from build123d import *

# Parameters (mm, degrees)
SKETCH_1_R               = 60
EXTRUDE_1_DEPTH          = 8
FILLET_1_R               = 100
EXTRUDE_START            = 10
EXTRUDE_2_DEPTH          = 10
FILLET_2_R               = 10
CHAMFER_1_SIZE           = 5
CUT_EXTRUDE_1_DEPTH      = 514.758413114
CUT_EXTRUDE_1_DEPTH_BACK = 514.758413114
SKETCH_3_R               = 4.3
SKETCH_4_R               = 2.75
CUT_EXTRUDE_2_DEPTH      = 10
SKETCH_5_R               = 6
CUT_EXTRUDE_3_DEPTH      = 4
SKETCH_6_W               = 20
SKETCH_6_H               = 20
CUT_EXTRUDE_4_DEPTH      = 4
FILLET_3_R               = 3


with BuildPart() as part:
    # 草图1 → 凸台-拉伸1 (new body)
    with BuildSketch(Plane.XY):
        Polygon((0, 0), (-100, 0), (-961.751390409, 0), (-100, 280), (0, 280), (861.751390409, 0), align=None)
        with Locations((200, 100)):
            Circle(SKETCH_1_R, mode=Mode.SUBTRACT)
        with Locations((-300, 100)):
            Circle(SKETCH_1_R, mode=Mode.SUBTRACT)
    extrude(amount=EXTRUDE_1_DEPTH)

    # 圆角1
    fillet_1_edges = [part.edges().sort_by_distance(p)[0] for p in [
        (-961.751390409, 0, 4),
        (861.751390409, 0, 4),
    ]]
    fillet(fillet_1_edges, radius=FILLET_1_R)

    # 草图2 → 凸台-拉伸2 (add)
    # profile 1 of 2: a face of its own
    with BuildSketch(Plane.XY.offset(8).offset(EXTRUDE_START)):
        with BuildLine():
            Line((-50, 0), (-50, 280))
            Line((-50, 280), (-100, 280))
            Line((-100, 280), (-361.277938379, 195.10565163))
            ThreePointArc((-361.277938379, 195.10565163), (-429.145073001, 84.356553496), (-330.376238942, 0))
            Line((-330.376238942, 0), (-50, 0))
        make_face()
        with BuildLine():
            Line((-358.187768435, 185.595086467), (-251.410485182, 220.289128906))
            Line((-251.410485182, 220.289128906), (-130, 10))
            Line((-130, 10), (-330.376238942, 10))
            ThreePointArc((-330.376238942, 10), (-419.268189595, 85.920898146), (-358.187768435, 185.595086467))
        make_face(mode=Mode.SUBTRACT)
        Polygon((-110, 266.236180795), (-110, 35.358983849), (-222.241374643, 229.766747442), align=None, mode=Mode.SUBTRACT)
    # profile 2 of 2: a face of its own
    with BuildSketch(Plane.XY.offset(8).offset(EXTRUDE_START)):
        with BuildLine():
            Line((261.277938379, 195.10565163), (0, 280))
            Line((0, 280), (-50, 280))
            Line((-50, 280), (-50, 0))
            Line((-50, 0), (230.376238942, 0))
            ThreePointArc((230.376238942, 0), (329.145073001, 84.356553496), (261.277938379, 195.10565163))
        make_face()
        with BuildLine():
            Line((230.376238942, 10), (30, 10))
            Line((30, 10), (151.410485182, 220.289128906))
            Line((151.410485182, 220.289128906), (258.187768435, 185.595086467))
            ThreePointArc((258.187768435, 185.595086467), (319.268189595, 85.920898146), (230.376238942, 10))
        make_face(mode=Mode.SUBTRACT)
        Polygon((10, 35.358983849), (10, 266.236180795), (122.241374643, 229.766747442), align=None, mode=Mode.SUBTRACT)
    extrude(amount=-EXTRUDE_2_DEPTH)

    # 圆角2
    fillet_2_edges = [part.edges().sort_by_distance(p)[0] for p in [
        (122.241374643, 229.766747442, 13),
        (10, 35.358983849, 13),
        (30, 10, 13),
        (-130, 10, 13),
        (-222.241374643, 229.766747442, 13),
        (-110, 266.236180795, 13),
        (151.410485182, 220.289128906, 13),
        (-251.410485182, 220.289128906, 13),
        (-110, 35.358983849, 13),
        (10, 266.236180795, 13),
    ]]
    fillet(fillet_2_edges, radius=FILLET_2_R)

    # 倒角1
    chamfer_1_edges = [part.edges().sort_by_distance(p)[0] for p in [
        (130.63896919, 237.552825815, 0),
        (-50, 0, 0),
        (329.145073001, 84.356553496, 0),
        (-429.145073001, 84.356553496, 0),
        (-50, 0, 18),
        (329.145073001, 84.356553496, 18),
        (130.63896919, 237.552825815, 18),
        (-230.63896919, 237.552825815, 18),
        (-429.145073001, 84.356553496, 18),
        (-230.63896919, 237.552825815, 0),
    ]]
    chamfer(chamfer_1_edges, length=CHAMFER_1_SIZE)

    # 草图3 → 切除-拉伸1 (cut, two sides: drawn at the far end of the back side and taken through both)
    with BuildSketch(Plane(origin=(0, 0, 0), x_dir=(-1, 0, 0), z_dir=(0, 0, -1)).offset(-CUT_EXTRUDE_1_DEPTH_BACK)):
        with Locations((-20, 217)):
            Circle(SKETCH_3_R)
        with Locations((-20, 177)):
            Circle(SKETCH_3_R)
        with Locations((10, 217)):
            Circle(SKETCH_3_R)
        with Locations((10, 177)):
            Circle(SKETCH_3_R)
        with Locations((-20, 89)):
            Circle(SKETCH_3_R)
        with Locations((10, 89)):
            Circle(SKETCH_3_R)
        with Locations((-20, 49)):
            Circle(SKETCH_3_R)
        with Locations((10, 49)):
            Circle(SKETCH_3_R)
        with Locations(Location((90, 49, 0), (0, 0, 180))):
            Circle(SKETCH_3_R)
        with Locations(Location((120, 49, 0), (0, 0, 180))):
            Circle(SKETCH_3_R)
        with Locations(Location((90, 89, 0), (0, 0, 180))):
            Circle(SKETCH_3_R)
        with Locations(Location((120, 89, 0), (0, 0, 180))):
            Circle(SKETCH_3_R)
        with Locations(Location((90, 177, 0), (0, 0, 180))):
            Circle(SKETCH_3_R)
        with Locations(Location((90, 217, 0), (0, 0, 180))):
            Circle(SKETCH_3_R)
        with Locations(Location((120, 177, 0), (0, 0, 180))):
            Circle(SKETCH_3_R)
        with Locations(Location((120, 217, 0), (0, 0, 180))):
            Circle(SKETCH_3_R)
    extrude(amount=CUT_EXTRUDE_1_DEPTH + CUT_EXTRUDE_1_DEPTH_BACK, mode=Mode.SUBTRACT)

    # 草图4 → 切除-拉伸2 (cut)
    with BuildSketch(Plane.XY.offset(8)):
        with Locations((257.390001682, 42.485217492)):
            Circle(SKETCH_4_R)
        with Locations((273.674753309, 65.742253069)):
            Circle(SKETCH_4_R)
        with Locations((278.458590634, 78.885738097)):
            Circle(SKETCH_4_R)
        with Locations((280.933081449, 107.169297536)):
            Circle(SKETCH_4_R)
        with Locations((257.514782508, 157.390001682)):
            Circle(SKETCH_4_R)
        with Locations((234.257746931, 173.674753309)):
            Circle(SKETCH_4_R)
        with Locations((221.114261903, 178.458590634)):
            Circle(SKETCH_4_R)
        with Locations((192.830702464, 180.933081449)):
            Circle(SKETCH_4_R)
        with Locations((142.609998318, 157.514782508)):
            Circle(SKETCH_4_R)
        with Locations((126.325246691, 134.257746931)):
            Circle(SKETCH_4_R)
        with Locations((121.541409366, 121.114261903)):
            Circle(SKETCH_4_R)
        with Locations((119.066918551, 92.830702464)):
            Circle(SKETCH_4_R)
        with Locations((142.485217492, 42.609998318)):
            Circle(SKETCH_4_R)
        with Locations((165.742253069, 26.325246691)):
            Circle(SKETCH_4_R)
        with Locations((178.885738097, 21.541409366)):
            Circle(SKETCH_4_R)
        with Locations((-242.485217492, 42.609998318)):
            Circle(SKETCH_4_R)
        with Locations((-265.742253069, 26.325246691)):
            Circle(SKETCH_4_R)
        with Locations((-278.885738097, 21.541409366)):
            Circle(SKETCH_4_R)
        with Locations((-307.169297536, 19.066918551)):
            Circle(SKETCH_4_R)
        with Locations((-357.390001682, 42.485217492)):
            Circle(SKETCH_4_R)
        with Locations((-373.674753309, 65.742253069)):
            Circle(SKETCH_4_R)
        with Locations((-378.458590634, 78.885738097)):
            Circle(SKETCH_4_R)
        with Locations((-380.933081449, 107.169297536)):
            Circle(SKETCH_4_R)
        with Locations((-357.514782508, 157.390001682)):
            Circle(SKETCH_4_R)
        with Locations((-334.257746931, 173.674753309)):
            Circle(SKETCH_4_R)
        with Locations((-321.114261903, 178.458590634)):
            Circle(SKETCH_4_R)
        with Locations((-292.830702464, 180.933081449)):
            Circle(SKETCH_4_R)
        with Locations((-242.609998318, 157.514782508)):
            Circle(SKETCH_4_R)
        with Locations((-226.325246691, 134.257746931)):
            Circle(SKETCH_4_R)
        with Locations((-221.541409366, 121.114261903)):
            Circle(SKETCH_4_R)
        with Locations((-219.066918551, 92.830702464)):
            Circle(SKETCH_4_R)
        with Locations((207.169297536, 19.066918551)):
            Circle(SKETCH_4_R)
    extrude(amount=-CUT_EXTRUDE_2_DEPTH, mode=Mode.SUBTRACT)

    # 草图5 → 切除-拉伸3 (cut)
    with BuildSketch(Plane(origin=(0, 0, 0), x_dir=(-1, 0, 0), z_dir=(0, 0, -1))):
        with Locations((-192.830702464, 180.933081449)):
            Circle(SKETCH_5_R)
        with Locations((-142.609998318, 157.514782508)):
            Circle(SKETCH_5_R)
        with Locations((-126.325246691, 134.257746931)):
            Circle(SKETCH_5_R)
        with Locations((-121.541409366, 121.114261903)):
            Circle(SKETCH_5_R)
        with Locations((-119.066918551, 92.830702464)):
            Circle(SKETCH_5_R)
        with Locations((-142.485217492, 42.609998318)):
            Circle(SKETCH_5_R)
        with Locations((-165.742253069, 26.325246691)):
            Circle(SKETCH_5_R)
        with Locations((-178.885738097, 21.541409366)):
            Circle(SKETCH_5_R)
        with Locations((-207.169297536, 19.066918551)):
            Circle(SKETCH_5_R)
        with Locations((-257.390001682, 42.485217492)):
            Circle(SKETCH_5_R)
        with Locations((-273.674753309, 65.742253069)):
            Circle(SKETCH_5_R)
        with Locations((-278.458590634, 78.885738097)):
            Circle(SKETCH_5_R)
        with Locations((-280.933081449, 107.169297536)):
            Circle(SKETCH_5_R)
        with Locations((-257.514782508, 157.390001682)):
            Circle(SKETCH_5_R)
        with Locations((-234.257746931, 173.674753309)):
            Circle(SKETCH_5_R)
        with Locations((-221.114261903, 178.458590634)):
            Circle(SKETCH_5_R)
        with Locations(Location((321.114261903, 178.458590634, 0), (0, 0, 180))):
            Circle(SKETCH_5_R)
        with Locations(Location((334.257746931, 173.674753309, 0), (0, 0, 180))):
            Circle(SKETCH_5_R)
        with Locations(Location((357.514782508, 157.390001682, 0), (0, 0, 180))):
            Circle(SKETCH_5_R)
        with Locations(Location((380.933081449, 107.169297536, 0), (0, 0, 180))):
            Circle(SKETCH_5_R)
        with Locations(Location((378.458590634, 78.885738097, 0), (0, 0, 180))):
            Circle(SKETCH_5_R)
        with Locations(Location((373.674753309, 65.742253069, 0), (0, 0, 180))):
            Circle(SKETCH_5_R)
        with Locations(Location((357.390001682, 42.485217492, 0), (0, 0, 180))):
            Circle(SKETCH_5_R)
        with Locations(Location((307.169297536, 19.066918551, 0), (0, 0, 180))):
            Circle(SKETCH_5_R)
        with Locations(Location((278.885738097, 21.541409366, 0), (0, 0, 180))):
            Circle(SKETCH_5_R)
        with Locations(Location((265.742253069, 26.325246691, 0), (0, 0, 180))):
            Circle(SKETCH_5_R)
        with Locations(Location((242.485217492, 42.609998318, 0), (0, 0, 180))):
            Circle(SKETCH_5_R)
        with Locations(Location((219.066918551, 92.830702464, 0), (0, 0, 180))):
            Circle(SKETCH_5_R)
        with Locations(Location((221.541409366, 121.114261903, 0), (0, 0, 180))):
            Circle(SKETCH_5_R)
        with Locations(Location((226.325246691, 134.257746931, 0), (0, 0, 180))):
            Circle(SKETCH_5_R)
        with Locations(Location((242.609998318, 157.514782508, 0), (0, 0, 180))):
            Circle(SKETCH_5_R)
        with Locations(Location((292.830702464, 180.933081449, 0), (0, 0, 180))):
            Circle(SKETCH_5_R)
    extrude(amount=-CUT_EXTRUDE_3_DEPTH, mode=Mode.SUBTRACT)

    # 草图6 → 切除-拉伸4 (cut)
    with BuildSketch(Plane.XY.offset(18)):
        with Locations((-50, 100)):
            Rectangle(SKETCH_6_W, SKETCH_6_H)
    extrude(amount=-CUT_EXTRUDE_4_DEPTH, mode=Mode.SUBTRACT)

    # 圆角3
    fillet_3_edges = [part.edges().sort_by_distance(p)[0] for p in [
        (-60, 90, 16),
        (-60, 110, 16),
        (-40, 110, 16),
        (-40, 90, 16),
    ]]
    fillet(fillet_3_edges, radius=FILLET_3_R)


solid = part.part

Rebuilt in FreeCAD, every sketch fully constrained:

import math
import FreeCAD as App
import Part
import Sketcher
from FreeCAD import Vector
Q = App.Units.Quantity


def edges_at(feature, points):
    """Names of the edges that pass closest to the given points."""
    edges = feature.Shape.Edges
    near = lambda p: min(range(len(edges)), key=lambda i: edges[i].distToShape(Part.Vertex(*p))[0])
    return sorted({f"Edge{near(p) + 1}" for p in points})


def add_polygon(sketch, points):
    """Adds a closed chain of lines whose ends are joined by coincident constraints."""
    first, n = sketch.GeometryCount, len(points)
    for a, b in zip(points, points[1:] + points[:1]):
        sketch.addGeometry(Part.LineSegment(App.Vector(*a, 0), App.Vector(*b, 0)), False)
    for i in range(n):
        sketch.addConstraint(Sketcher.Constraint("Coincident", first + i, 2, first + (i + 1) % n, 1))

doc = App.newDocument("Part")
body = doc.addObject("PartDesign::Body", "Body")

sketch1 = body.newObject("Sketcher::SketchObject", "Sketch")
sketch1.AttachmentSupport = (doc.getObject("XY_Plane"), [""])
sketch1.MapMode = "FlatFace"
add_polygon(sketch1, [(-962, 0), (862, 0), (0, 280), (-100, 280)])
sketch1.addGeometry(Part.Circle(Vector(200, 100, 0), Vector(0, 0, 1), 60), False)
sketch1.addGeometry(Part.Circle(Vector(-300, 100, 0), Vector(0, 0, 1), 60), False)
sketch1.addConstraint([
    Sketcher.Constraint("Horizontal", 0),
    Sketcher.Constraint("Horizontal", 2),
    Sketcher.Constraint("Equal", 4, 5),
    Sketcher.Constraint("PointOnObject", 0, 2, -1),
    Sketcher.Constraint("PointOnObject", 1, 2, -2),
    Sketcher.Constraint("Horizontal", 4, 3, 5, 3),
    Sketcher.Constraint("Equal", 1, 3),
    Sketcher.Constraint("Diameter", 4, Q("120 mm")),
    Sketcher.Constraint("DistanceX", 2, 2, 2, 1, Q("100 mm")),
    Sketcher.Constraint("Angle", 1, Q("162 deg")),
    Sketcher.Constraint("DistanceX", -1, 1, 4, 3, Q("200 mm")),
    Sketcher.Constraint("DistanceY", -1, 1, 4, 3, Q("100 mm")),
    Sketcher.Constraint("DistanceX", 5, 3, -1, 1, Q("300 mm")),
    Sketcher.Constraint("DistanceY", -1, 1, 1, 2, Q("280 mm")),
])
pad1 = body.newObject("PartDesign::Pad", "Pad")
pad1.Profile = sketch1
pad1.Length = 8
doc.recompute()

fillet = body.newObject("PartDesign::Fillet", "Fillet")
fillet.Base = (pad1, edges_at(pad1, [(-961.751, 0, 4), (861.751, 0, 4)]))
fillet.Radius = 100

sketch2 = body.newObject("Sketcher::SketchObject", "Sketch001")
sketch2.AttachmentSupport = (doc.getObject("XY_Plane"), [""])
sketch2.MapMode = "FlatFace"
sketch2.AttachmentOffset = App.Placement(Vector(0, 0, 18), App.Rotation())
sketch2.addGeometry(Part.LineSegment(Vector(-330, 0, 0), Vector(230, 0, 0)), False)
sketch2.addGeometry(Part.ArcOfCircle(Part.Circle(Vector(230, 100, 0), Vector(0, 0, 1), 100), math.radians(-90), math.radians(72)), False)
sketch2.addGeometry(Part.LineSegment(Vector(261, 195, 0), Vector(0, 280, 0)), False)
sketch2.addGeometry(Part.LineSegment(Vector(0, 280, 0), Vector(-100, 280, 0)), False)
sketch2.addGeometry(Part.LineSegment(Vector(-100, 280, 0), Vector(-361, 195, 0)), False)
sketch2.addGeometry(Part.ArcOfCircle(Part.Circle(Vector(-330, 100, 0), Vector(0, 0, 1), 100), math.radians(108), math.radians(270)), False)
sketch2.addGeometry(Part.ArcOfCircle(Part.Circle(Vector(-330, 100, 0), Vector(0, 0, 1), 90), math.radians(108), math.radians(270)), False)
sketch2.addGeometry(Part.LineSegment(Vector(-358, 186, 0), Vector(-251, 220, 0)), False)
sketch2.addGeometry(Part.LineSegment(Vector(-251, 220, 0), Vector(-130, 10, 0)), False)
sketch2.addGeometry(Part.LineSegment(Vector(-130, 10, 0), Vector(-330, 10, 0)), False)
add_polygon(sketch2, [(-222, 230), (-110, 266), (-110, 35)])
add_polygon(sketch2, [(10, 35), (10, 266), (122, 230)])
sketch2.addGeometry(Part.ArcOfCircle(Part.Circle(Vector(230, 100, 0), Vector(0, 0, 1), 90), math.radians(-90), math.radians(72)), False)
sketch2.addGeometry(Part.LineSegment(Vector(230, 10, 0), Vector(30, 10, 0)), False)
sketch2.addGeometry(Part.LineSegment(Vector(30, 10, 0), Vector(151, 220, 0)), False)
sketch2.addGeometry(Part.LineSegment(Vector(151, 220, 0), Vector(258, 186, 0)), False)
sketch2.addConstraint([
    Sketcher.Constraint("Tangent", 0, 2, 1, 1),
    Sketcher.Constraint("Tangent", 1, 2, 2, 1),
    Sketcher.Constraint("Coincident", 2, 2, 3, 1),
    Sketcher.Constraint("Coincident", 3, 2, 4, 1),
    Sketcher.Constraint("Tangent", 4, 2, 5, 1),
    Sketcher.Constraint("Tangent", 5, 2, 0, 1),
    Sketcher.Constraint("Tangent", 6, 1, 7, 1),
    Sketcher.Constraint("Coincident", 7, 2, 8, 1),
    Sketcher.Constraint("Coincident", 8, 2, 9, 1),
    Sketcher.Constraint("Tangent", 9, 2, 6, 2),
    Sketcher.Constraint("Tangent", 16, 1, 17, 1),
    Sketcher.Constraint("Coincident", 17, 2, 18, 1),
    Sketcher.Constraint("Coincident", 18, 2, 19, 1),
    Sketcher.Constraint("Tangent", 19, 2, 16, 2),
    Sketcher.Constraint("Horizontal", 0),
    Sketcher.Constraint("Horizontal", 3),
    Sketcher.Constraint("Horizontal", 9),
    Sketcher.Constraint("Vertical", 11),
    Sketcher.Constraint("Vertical", 13),
    Sketcher.Constraint("Horizontal", 17),
    Sketcher.Constraint("Coincident", 6, 3, 5, 3),
    Sketcher.Constraint("Coincident", 16, 3, 1, 3),
    Sketcher.Constraint("Equal", 1, 5),
    Sketcher.Constraint("Equal", 6, 16),
    Sketcher.Constraint("PointOnObject", 0, 2, -1),
    Sketcher.Constraint("PointOnObject", 2, 2, -2),
    Sketcher.Constraint("Parallel", 4, 7),
    Sketcher.Constraint("Parallel", 7, 10),
    Sketcher.Constraint("Parallel", 8, 12),
    Sketcher.Constraint("Parallel", 2, 14),
    Sketcher.Constraint("Parallel", 15, 18),
    Sketcher.Constraint("Parallel", 14, 19),
    Sketcher.Constraint("Horizontal", 10, 2, 13, 2),
    Sketcher.Constraint("Horizontal", 12, 2, 14, 2),
    Sketcher.Constraint("Horizontal", 11, 2, 15, 2),
    Sketcher.Constraint("Horizontal", 7, 2, 18, 2),
    Sketcher.Constraint("Equal", 9, 17),
    Sketcher.Constraint("Radius", 1, Q("100 mm")),
    Sketcher.Constraint("Radius", 6, Q("90 mm")),
    Sketcher.Constraint("DistanceX", 3, 2, 3, 1, Q("100 mm")),
    Sketcher.Constraint("Angle", 2, Q("162 deg")),
    Sketcher.Constraint("Angle", 8, Q("-60 deg")),
    Sketcher.Constraint("DistanceY", -1, 1, 2, 2, Q("280 mm")),
    Sketcher.Constraint("DistanceX", 8, 2, -1, 1, Q("130 mm")),
    Sketcher.Constraint("DistanceX", 10, 2, -1, 1, Q("110 mm")),
    Sketcher.Constraint("DistanceX", -1, 1, 13, 2, Q("10 mm")),
    Sketcher.Constraint("Distance", 12, Q("224.482749 mm")),
    Sketcher.Constraint("DistanceY", -1, 1, 10, 2, Q("266.236181 mm")),
])
pad2 = body.newObject("PartDesign::Pad", "Pad001")
pad2.Profile = sketch2
pad2.Length = 10
pad2.Reversed = True
doc.recompute()

fillet2 = body.newObject("PartDesign::Fillet", "Fillet001")
fillet2.Base = (pad2, edges_at(pad2, [
    (122.241, 229.767, 13),
    (10, 35.359, 13),
    (30, 10, 13),
    (-130, 10, 13),
    (-222.241, 229.767, 13),
    (-110, 266.236, 13),
    (151.41, 220.289, 13),
    (-251.41, 220.289, 13),
    (-110, 35.359, 13),
    (10, 266.236, 13),
]))
fillet2.Radius = 10
doc.recompute()

chamfer = body.newObject("PartDesign::Chamfer", "Chamfer")
chamfer.Base = (fillet2, edges_at(fillet2, [
    (130.639, 237.553, 0),
    (-50, 0, 0),
    (329.145, 84.357, 0),
    (-429.145, 84.357, 0),
    (-50, 0, 18),
    (329.145, 84.357, 18),
    (130.639, 237.553, 18),
    (-230.639, 237.553, 18),
    (-429.145, 84.357, 18),
    (-230.639, 237.553, 0),
]))
chamfer.Size = 5

sketch3 = body.newObject("Sketcher::SketchObject", "Sketch002")
sketch3.AttachmentSupport = (doc.getObject("XY_Plane"), [""])
sketch3.MapMode = "FlatFace"
sketch3.addGeometry([
    Part.Circle(Vector(20, 217, 0), Vector(0, 0, 1), 4.3),
    Part.Circle(Vector(20, 177, 0), Vector(0, 0, 1), 4.3),
    Part.Circle(Vector(-10, 217, 0), Vector(0, 0, 1), 4.3),
    Part.Circle(Vector(-10, 177, 0), Vector(0, 0, 1), 4.3),
    Part.Circle(Vector(20, 89, 0), Vector(0, 0, 1), 4.3),
    Part.Circle(Vector(-10, 89, 0), Vector(0, 0, 1), 4.3),
    Part.Circle(Vector(20, 49, 0), Vector(0, 0, 1), 4.3),
    Part.Circle(Vector(-10, 49, 0), Vector(0, 0, 1), 4.3),
    Part.Circle(Vector(-90, 49, 0), Vector(0, 0, 1), 4.3),
    Part.Circle(Vector(-120, 49, 0), Vector(0, 0, 1), 4.3),
    Part.Circle(Vector(-90, 89, 0), Vector(0, 0, 1), 4.3),
    Part.Circle(Vector(-120, 89, 0), Vector(0, 0, 1), 4.3),
    Part.Circle(Vector(-90, 177, 0), Vector(0, 0, 1), 4.3),
    Part.Circle(Vector(-90, 217, 0), Vector(0, 0, 1), 4.3),
    Part.Circle(Vector(-120, 177, 0), Vector(0, 0, 1), 4.3),
    Part.Circle(Vector(-120, 217, 0), Vector(0, 0, 1), 4.3),
], False)
sketch3.addConstraint([
    Sketcher.Constraint("Equal", 0, 1),
    Sketcher.Constraint("Equal", 1, 2),
    Sketcher.Constraint("Equal", 2, 3),
    Sketcher.Constraint("Equal", 3, 4),
    Sketcher.Constraint("Equal", 4, 5),
    Sketcher.Constraint("Equal", 5, 6),
    Sketcher.Constraint("Equal", 6, 7),
    Sketcher.Constraint("Equal", 7, 8),
    Sketcher.Constraint("Equal", 8, 9),
    Sketcher.Constraint("Equal", 9, 10),
    Sketcher.Constraint("Equal", 10, 11),
    Sketcher.Constraint("Equal", 11, 12),
    Sketcher.Constraint("Equal", 12, 13),
    Sketcher.Constraint("Equal", 13, 14),
    Sketcher.Constraint("Equal", 14, 15),
    Sketcher.Constraint("Horizontal", 0, 3, 2, 3),
    Sketcher.Constraint("Horizontal", 1, 3, 3, 3),
    Sketcher.Constraint("Horizontal", 4, 3, 5, 3),
    Sketcher.Constraint("Horizontal", 6, 3, 7, 3),
    Sketcher.Constraint("Horizontal", 7, 3, 8, 3),
    Sketcher.Constraint("Horizontal", 8, 3, 9, 3),
    Sketcher.Constraint("Horizontal", 5, 3, 10, 3),
    Sketcher.Constraint("Horizontal", 10, 3, 11, 3),
    Sketcher.Constraint("Horizontal", 3, 3, 12, 3),
    Sketcher.Constraint("Horizontal", 2, 3, 13, 3),
    Sketcher.Constraint("Horizontal", 12, 3, 14, 3),
    Sketcher.Constraint("Horizontal", 13, 3, 15, 3),
    Sketcher.Constraint("Vertical", 0, 3, 1, 3),
    Sketcher.Constraint("Vertical", 2, 3, 3, 3),
    Sketcher.Constraint("Vertical", 1, 3, 4, 3),
    Sketcher.Constraint("Vertical", 3, 3, 5, 3),
    Sketcher.Constraint("Vertical", 4, 3, 6, 3),
    Sketcher.Constraint("Vertical", 5, 3, 7, 3),
    Sketcher.Constraint("Vertical", 8, 3, 10, 3),
    Sketcher.Constraint("Vertical", 9, 3, 11, 3),
    Sketcher.Constraint("Vertical", 10, 3, 12, 3),
    Sketcher.Constraint("Vertical", 12, 3, 13, 3),
    Sketcher.Constraint("Vertical", 11, 3, 14, 3),
    Sketcher.Constraint("Vertical", 14, 3, 15, 3),
    Sketcher.Constraint("Diameter", 0, Q("8.6 mm")),
    Sketcher.Constraint("DistanceX", -1, 1, 0, 3, Q("20 mm")),
    Sketcher.Constraint("DistanceY", -1, 1, 0, 3, Q("217 mm")),
    Sketcher.Constraint("DistanceY", -1, 1, 1, 3, Q("177 mm")),
    Sketcher.Constraint("DistanceX", 2, 3, -1, 1, Q("10 mm")),
    Sketcher.Constraint("DistanceY", -1, 1, 4, 3, Q("89 mm")),
    Sketcher.Constraint("DistanceY", -1, 1, 6, 3, Q("49 mm")),
    Sketcher.Constraint("DistanceX", 8, 3, -1, 1, Q("90 mm")),
    Sketcher.Constraint("DistanceX", 9, 3, -1, 1, Q("120 mm")),
])
pocket1 = body.newObject("PartDesign::Pocket", "Pocket")
pocket1.Profile = sketch3
pocket1.Type = "ThroughAll"
pocket1.Midplane = True

sketch4 = body.newObject("Sketcher::SketchObject", "Sketch003")
sketch4.AttachmentSupport = (doc.getObject("XY_Plane"), [""])
sketch4.MapMode = "FlatFace"
sketch4.AttachmentOffset = App.Placement(Vector(0, 0, 8), App.Rotation())
sketch4.addGeometry([
    Part.Circle(Vector(257.4, 42.5, 0), Vector(0, 0, 1), 2.8),
    Part.Circle(Vector(273.7, 65.7, 0), Vector(0, 0, 1), 2.8),
    Part.Circle(Vector(278.5, 78.9, 0), Vector(0, 0, 1), 2.8),
    Part.Circle(Vector(280.9, 107.2, 0), Vector(0, 0, 1), 2.8),
    Part.Circle(Vector(257.5, 157.4, 0), Vector(0, 0, 1), 2.8),
    Part.Circle(Vector(234.3, 173.7, 0), Vector(0, 0, 1), 2.8),
    Part.Circle(Vector(221.1, 178.5, 0), Vector(0, 0, 1), 2.8),
    Part.Circle(Vector(192.8, 180.9, 0), Vector(0, 0, 1), 2.8),
    Part.Circle(Vector(142.6, 157.5, 0), Vector(0, 0, 1), 2.8),
    Part.Circle(Vector(126.3, 134.3, 0), Vector(0, 0, 1), 2.8),
    Part.Circle(Vector(121.5, 121.1, 0), Vector(0, 0, 1), 2.8),
    Part.Circle(Vector(119.1, 92.8, 0), Vector(0, 0, 1), 2.8),
    Part.Circle(Vector(142.5, 42.6, 0), Vector(0, 0, 1), 2.8),
    Part.Circle(Vector(165.7, 26.3, 0), Vector(0, 0, 1), 2.8),
    Part.Circle(Vector(178.9, 21.5, 0), Vector(0, 0, 1), 2.8),
    Part.Circle(Vector(-242.5, 42.6, 0), Vector(0, 0, 1), 2.8),
    Part.Circle(Vector(-265.7, 26.3, 0), Vector(0, 0, 1), 2.8),
    Part.Circle(Vector(-278.9, 21.5, 0), Vector(0, 0, 1), 2.8),
    Part.Circle(Vector(-307.2, 19.1, 0), Vector(0, 0, 1), 2.8),
    Part.Circle(Vector(-357.4, 42.5, 0), Vector(0, 0, 1), 2.8),
    Part.Circle(Vector(-373.7, 65.7, 0), Vector(0, 0, 1), 2.8),
    Part.Circle(Vector(-378.5, 78.9, 0), Vector(0, 0, 1), 2.8),
    Part.Circle(Vector(-380.9, 107.2, 0), Vector(0, 0, 1), 2.8),
    Part.Circle(Vector(-357.5, 157.4, 0), Vector(0, 0, 1), 2.8),
    Part.Circle(Vector(-334.3, 173.7, 0), Vector(0, 0, 1), 2.8),
    Part.Circle(Vector(-321.1, 178.5, 0), Vector(0, 0, 1), 2.8),
    Part.Circle(Vector(-292.8, 180.9, 0), Vector(0, 0, 1), 2.8),
    Part.Circle(Vector(-242.6, 157.5, 0), Vector(0, 0, 1), 2.8),
    Part.Circle(Vector(-226.3, 134.3, 0), Vector(0, 0, 1), 2.8),
    Part.Circle(Vector(-221.5, 121.1, 0), Vector(0, 0, 1), 2.8),
    Part.Circle(Vector(-219.1, 92.8, 0), Vector(0, 0, 1), 2.8),
    Part.Circle(Vector(207.2, 19.1, 0), Vector(0, 0, 1), 2.8),
], False)
sketch4.addConstraint([
    Sketcher.Constraint("Equal", 0, 1),
    Sketcher.Constraint("Equal", 1, 2),
    Sketcher.Constraint("Equal", 2, 3),
    Sketcher.Constraint("Equal", 3, 4),
    Sketcher.Constraint("Equal", 4, 5),
    Sketcher.Constraint("Equal", 5, 6),
    Sketcher.Constraint("Equal", 6, 7),
    Sketcher.Constraint("Equal", 7, 8),
    Sketcher.Constraint("Equal", 8, 9),
    Sketcher.Constraint("Equal", 9, 10),
    Sketcher.Constraint("Equal", 10, 11),
    Sketcher.Constraint("Equal", 11, 12),
    Sketcher.Constraint("Equal", 12, 13),
    Sketcher.Constraint("Equal", 13, 14),
    Sketcher.Constraint("Equal", 14, 15),
    Sketcher.Constraint("Equal", 15, 16),
    Sketcher.Constraint("Equal", 16, 17),
    Sketcher.Constraint("Equal", 17, 18),
    Sketcher.Constraint("Equal", 18, 19),
    Sketcher.Constraint("Equal", 19, 20),
    Sketcher.Constraint("Equal", 20, 21),
    Sketcher.Constraint("Equal", 21, 22),
    Sketcher.Constraint("Equal", 22, 23),
    Sketcher.Constraint("Equal", 23, 24),
    Sketcher.Constraint("Equal", 24, 25),
    Sketcher.Constraint("Equal", 25, 26),
    Sketcher.Constraint("Equal", 26, 27),
    Sketcher.Constraint("Equal", 27, 28),
    Sketcher.Constraint("Equal", 28, 29),
    Sketcher.Constraint("Equal", 29, 30),
    Sketcher.Constraint("Equal", 30, 31),
    Sketcher.Constraint("Horizontal", 12, 3, 15, 3),
    Sketcher.Constraint("Horizontal", 13, 3, 16, 3),
    Sketcher.Constraint("Horizontal", 14, 3, 17, 3),
    Sketcher.Constraint("Horizontal", 0, 3, 19, 3),
    Sketcher.Constraint("Horizontal", 1, 3, 20, 3),
    Sketcher.Constraint("Horizontal", 2, 3, 21, 3),
    Sketcher.Constraint("Horizontal", 3, 3, 22, 3),
    Sketcher.Constraint("Horizontal", 4, 3, 23, 3),
    Sketcher.Constraint("Horizontal", 5, 3, 24, 3),
    Sketcher.Constraint("Horizontal", 6, 3, 25, 3),
    Sketcher.Constraint("Horizontal", 7, 3, 26, 3),
    Sketcher.Constraint("Horizontal", 8, 3, 27, 3),
    Sketcher.Constraint("Horizontal", 9, 3, 28, 3),
    Sketcher.Constraint("Horizontal", 10, 3, 29, 3),
    Sketcher.Constraint("Horizontal", 11, 3, 30, 3),
    Sketcher.Constraint("Horizontal", 18, 3, 31, 3),
    Sketcher.Constraint("Diameter", 0, Q("5.5 mm")),
    Sketcher.Constraint("DistanceX", -1, 1, 0, 3, Q("257.390002 mm")),
    Sketcher.Constraint("DistanceY", -1, 1, 4, 3, Q("157.390002 mm")),
    Sketcher.Constraint("DistanceX", -1, 1, 8, 3, Q("142.609998 mm")),
    Sketcher.Constraint("DistanceY", -1, 1, 12, 3, Q("42.609998 mm")),
    Sketcher.Constraint("DistanceX", 19, 3, -1, 1, Q("357.390002 mm")),
    Sketcher.Constraint("DistanceX", 27, 3, -1, 1, Q("242.609998 mm")),
    Sketcher.Constraint("DistanceX", 4, 3, 3, 3, Q("23.418299 mm")),
    Sketcher.Constraint("DistanceY", 1, 3, 5, 3, Q("107.9325 mm")),
    Sketcher.Constraint("DistanceY", 8, 3, 7, 3, Q("23.418299 mm")),
    Sketcher.Constraint("DistanceX", 9, 3, 5, 3, Q("107.9325 mm")),
    Sketcher.Constraint("DistanceX", 11, 3, 12, 3, Q("23.418299 mm")),
    Sketcher.Constraint("DistanceX", 13, 3, 1, 3, Q("107.9325 mm")),
    Sketcher.Constraint("DistanceX", 16, 3, 9, 3, Q("392.0675 mm")),
    Sketcher.Constraint("DistanceY", 16, 3, 9, 3, Q("107.9325 mm")),
    Sketcher.Constraint("DistanceY", 18, 3, 19, 3, Q("23.418299 mm")),
    Sketcher.Constraint("DistanceX", 20, 3, 16, 3, Q("107.9325 mm")),
    Sketcher.Constraint("DistanceX", 22, 3, 23, 3, Q("23.418299 mm")),
    Sketcher.Constraint("DistanceX", 24, 3, 28, 3, Q("107.9325 mm")),
    Sketcher.Constraint("DistanceX", 15, 3, 30, 3, Q("23.418299 mm")),
    Sketcher.Constraint("DistanceX", -1, 1, 2, 3, Q("278.458591 mm")),
    Sketcher.Constraint("DistanceY", -1, 1, 2, 3, Q("78.885738 mm")),
    Sketcher.Constraint("DistanceX", -1, 1, 3, 3, Q("280.933081 mm")),
    Sketcher.Constraint("DistanceX", -1, 1, 6, 3, Q("221.114262 mm")),
    Sketcher.Constraint("DistanceY", -1, 1, 6, 3, Q("178.458591 mm")),
    Sketcher.Constraint("DistanceY", -1, 1, 7, 3, Q("180.933081 mm")),
    Sketcher.Constraint("DistanceX", -1, 1, 10, 3, Q("121.541409 mm")),
    Sketcher.Constraint("DistanceY", -1, 1, 10, 3, Q("121.114262 mm")),
    Sketcher.Constraint("DistanceX", -1, 1, 11, 3, Q("119.066919 mm")),
    Sketcher.Constraint("DistanceX", -1, 1, 14, 3, Q("178.885738 mm")),
    Sketcher.Constraint("DistanceY", -1, 1, 14, 3, Q("21.541409 mm")),
    Sketcher.Constraint("DistanceX", 17, 3, -1, 1, Q("278.885738 mm")),
    Sketcher.Constraint("DistanceY", -1, 1, 18, 3, Q("19.066919 mm")),
    Sketcher.Constraint("DistanceX", 21, 3, -1, 1, Q("378.458591 mm")),
    Sketcher.Constraint("DistanceX", 22, 3, -1, 1, Q("380.933081 mm")),
    Sketcher.Constraint("DistanceX", 25, 3, -1, 1, Q("321.114262 mm")),
    Sketcher.Constraint("DistanceX", 29, 3, -1, 1, Q("221.541409 mm")),
    Sketcher.Constraint("DistanceX", 30, 3, -1, 1, Q("219.066919 mm")),
    Sketcher.Constraint("DistanceX", 0, 3, 1, 3, Q("16.284752 mm")),
    Sketcher.Constraint("DistanceY", 2, 3, 3, 3, Q("28.283559 mm")),
    Sketcher.Constraint("DistanceY", 1, 3, 4, 3, Q("91.647749 mm")),
    Sketcher.Constraint("DistanceX", 7, 3, 6, 3, Q("28.283559 mm")),
    Sketcher.Constraint("DistanceX", 8, 3, 5, 3, Q("91.647749 mm")),
    Sketcher.Constraint("DistanceY", 11, 3, 10, 3, Q("28.283559 mm")),
    Sketcher.Constraint("DistanceY", 12, 3, 9, 3, Q("91.647749 mm")),
    Sketcher.Constraint("DistanceX", 18, 3, 17, 3, Q("28.283559 mm")),
    Sketcher.Constraint("DistanceX", 25, 3, 26, 3, Q("28.283559 mm")),
    Sketcher.Constraint("DistanceX", 24, 3, 27, 3, Q("91.647749 mm")),
    Sketcher.Constraint("DistanceX", 14, 3, 31, 3, Q("28.283559 mm")),
])
pocket2 = body.newObject("PartDesign::Pocket", "Pocket001")
pocket2.Profile = sketch4
pocket2.Length = 10

sketch5 = body.newObject("Sketcher::SketchObject", "Sketch004")
sketch5.AttachmentSupport = (doc.getObject("XY_Plane"), [""])
sketch5.MapMode = "FlatFace"
sketch5.addGeometry([
    Part.Circle(Vector(193, 181, 0), Vector(0, 0, 1), 6),
    Part.Circle(Vector(143, 158, 0), Vector(0, 0, 1), 6),
    Part.Circle(Vector(126, 134, 0), Vector(0, 0, 1), 6),
    Part.Circle(Vector(122, 121, 0), Vector(0, 0, 1), 6),
    Part.Circle(Vector(119, 93, 0), Vector(0, 0, 1), 6),
    Part.Circle(Vector(142, 43, 0), Vector(0, 0, 1), 6),
    Part.Circle(Vector(166, 26, 0), Vector(0, 0, 1), 6),
    Part.Circle(Vector(179, 22, 0), Vector(0, 0, 1), 6),
    Part.Circle(Vector(207, 19, 0), Vector(0, 0, 1), 6),
    Part.Circle(Vector(257, 42, 0), Vector(0, 0, 1), 6),
    Part.Circle(Vector(274, 66, 0), Vector(0, 0, 1), 6),
    Part.Circle(Vector(278, 79, 0), Vector(0, 0, 1), 6),
    Part.Circle(Vector(281, 107, 0), Vector(0, 0, 1), 6),
    Part.Circle(Vector(258, 157, 0), Vector(0, 0, 1), 6),
    Part.Circle(Vector(234, 174, 0), Vector(0, 0, 1), 6),
    Part.Circle(Vector(221, 178, 0), Vector(0, 0, 1), 6),
    Part.Circle(Vector(-321, 178, 0), Vector(0, 0, 1), 6),
    Part.Circle(Vector(-334, 174, 0), Vector(0, 0, 1), 6),
    Part.Circle(Vector(-358, 157, 0), Vector(0, 0, 1), 6),
    Part.Circle(Vector(-381, 107, 0), Vector(0, 0, 1), 6),
    Part.Circle(Vector(-378, 79, 0), Vector(0, 0, 1), 6),
    Part.Circle(Vector(-374, 66, 0), Vector(0, 0, 1), 6),
    Part.Circle(Vector(-357, 42, 0), Vector(0, 0, 1), 6),
    Part.Circle(Vector(-307, 19, 0), Vector(0, 0, 1), 6),
    Part.Circle(Vector(-279, 22, 0), Vector(0, 0, 1), 6),
    Part.Circle(Vector(-266, 26, 0), Vector(0, 0, 1), 6),
    Part.Circle(Vector(-242, 43, 0), Vector(0, 0, 1), 6),
    Part.Circle(Vector(-219, 93, 0), Vector(0, 0, 1), 6),
    Part.Circle(Vector(-222, 121, 0), Vector(0, 0, 1), 6),
    Part.Circle(Vector(-226, 134, 0), Vector(0, 0, 1), 6),
    Part.Circle(Vector(-243, 158, 0), Vector(0, 0, 1), 6),
    Part.Circle(Vector(-293, 181, 0), Vector(0, 0, 1), 6),
], False)
sketch5.addConstraint([
    Sketcher.Constraint("Equal", 0, 1),
    Sketcher.Constraint("Equal", 1, 2),
    Sketcher.Constraint("Equal", 2, 3),
    Sketcher.Constraint("Equal", 3, 4),
    Sketcher.Constraint("Equal", 4, 5),
    Sketcher.Constraint("Equal", 5, 6),
    Sketcher.Constraint("Equal", 6, 7),
    Sketcher.Constraint("Equal", 7, 8),
    Sketcher.Constraint("Equal", 8, 9),
    Sketcher.Constraint("Equal", 9, 10),
    Sketcher.Constraint("Equal", 10, 11),
    Sketcher.Constraint("Equal", 11, 12),
    Sketcher.Constraint("Equal", 12, 13),
    Sketcher.Constraint("Equal", 13, 14),
    Sketcher.Constraint("Equal", 14, 15),
    Sketcher.Constraint("Equal", 15, 16),
    Sketcher.Constraint("Equal", 16, 17),
    Sketcher.Constraint("Equal", 17, 18),
    Sketcher.Constraint("Equal", 18, 19),
    Sketcher.Constraint("Equal", 19, 20),
    Sketcher.Constraint("Equal", 20, 21),
    Sketcher.Constraint("Equal", 21, 22),
    Sketcher.Constraint("Equal", 22, 23),
    Sketcher.Constraint("Equal", 23, 24),
    Sketcher.Constraint("Equal", 24, 25),
    Sketcher.Constraint("Equal", 25, 26),
    Sketcher.Constraint("Equal", 26, 27),
    Sketcher.Constraint("Equal", 27, 28),
    Sketcher.Constraint("Equal", 28, 29),
    Sketcher.Constraint("Equal", 29, 30),
    Sketcher.Constraint("Equal", 30, 31),
    Sketcher.Constraint("Horizontal", 15, 3, 16, 3),
    Sketcher.Constraint("Horizontal", 14, 3, 17, 3),
    Sketcher.Constraint("Horizontal", 13, 3, 18, 3),
    Sketcher.Constraint("Horizontal", 12, 3, 19, 3),
    Sketcher.Constraint("Horizontal", 11, 3, 20, 3),
    Sketcher.Constraint("Horizontal", 10, 3, 21, 3),
    Sketcher.Constraint("Horizontal", 9, 3, 22, 3),
    Sketcher.Constraint("Horizontal", 8, 3, 23, 3),
    Sketcher.Constraint("Horizontal", 7, 3, 24, 3),
    Sketcher.Constraint("Horizontal", 6, 3, 25, 3),
    Sketcher.Constraint("Horizontal", 5, 3, 26, 3),
    Sketcher.Constraint("Horizontal", 4, 3, 27, 3),
    Sketcher.Constraint("Horizontal", 3, 3, 28, 3),
    Sketcher.Constraint("Horizontal", 2, 3, 29, 3),
    Sketcher.Constraint("Horizontal", 1, 3, 30, 3),
    Sketcher.Constraint("Horizontal", 0, 3, 31, 3),
    Sketcher.Constraint("Diameter", 0, Q("12 mm")),
    Sketcher.Constraint("DistanceX", 19, 3, 4, 3, Q("500 mm")),
    Sketcher.Constraint("DistanceX", -1, 1, 1, 3, Q("142.609998 mm")),
    Sketcher.Constraint("DistanceY", -1, 1, 5, 3, Q("42.609998 mm")),
    Sketcher.Constraint("DistanceX", -1, 1, 9, 3, Q("257.390002 mm")),
    Sketcher.Constraint("DistanceY", -1, 1, 13, 3, Q("157.390002 mm")),
    Sketcher.Constraint("DistanceX", 22, 3, -1, 1, Q("357.390002 mm")),
    Sketcher.Constraint("DistanceX", 30, 3, -1, 1, Q("242.609998 mm")),
    Sketcher.Constraint("DistanceY", 1, 3, 0, 3, Q("23.418299 mm")),
    Sketcher.Constraint("DistanceX", 4, 3, 5, 3, Q("23.418299 mm")),
    Sketcher.Constraint("DistanceY", 6, 3, 2, 3, Q("107.9325 mm")),
    Sketcher.Constraint("DistanceY", 8, 3, 9, 3, Q("23.418299 mm")),
    Sketcher.Constraint("DistanceX", 6, 3, 10, 3, Q("107.9325 mm")),
    Sketcher.Constraint("DistanceX", 13, 3, 12, 3, Q("23.418299 mm")),
    Sketcher.Constraint("DistanceX", 18, 3, 4, 3, Q("476.581701 mm")),
    Sketcher.Constraint("DistanceY", 4, 3, 18, 3, Q("64.559299 mm")),
    Sketcher.Constraint("DistanceY", 21, 3, 17, 3, Q("107.9325 mm")),
    Sketcher.Constraint("DistanceX", 21, 3, 25, 3, Q("107.9325 mm")),
    Sketcher.Constraint("DistanceX", 26, 3, 27, 3, Q("23.418299 mm")),
    Sketcher.Constraint("DistanceX", 17, 3, 29, 3, Q("107.9325 mm")),
    Sketcher.Constraint("DistanceY", -1, 1, 0, 3, Q("180.933081 mm")),
    Sketcher.Constraint("DistanceX", -1, 1, 3, 3, Q("121.541409 mm")),
    Sketcher.Constraint("DistanceY", -1, 1, 3, 3, Q("121.114262 mm")),
    Sketcher.Constraint("DistanceX", -1, 1, 4, 3, Q("119.066919 mm")),
    Sketcher.Constraint("DistanceX", -1, 1, 7, 3, Q("178.885738 mm")),
    Sketcher.Constraint("DistanceY", -1, 1, 7, 3, Q("21.541409 mm")),
    Sketcher.Constraint("DistanceY", -1, 1, 8, 3, Q("19.066919 mm")),
    Sketcher.Constraint("DistanceX", -1, 1, 11, 3, Q("278.458591 mm")),
    Sketcher.Constraint("DistanceY", -1, 1, 11, 3, Q("78.885738 mm")),
    Sketcher.Constraint("DistanceX", -1, 1, 12, 3, Q("280.933081 mm")),
    Sketcher.Constraint("DistanceX", -1, 1, 15, 3, Q("221.114262 mm")),
    Sketcher.Constraint("DistanceY", -1, 1, 15, 3, Q("178.458591 mm")),
    Sketcher.Constraint("DistanceX", 16, 3, -1, 1, Q("321.114262 mm")),
    Sketcher.Constraint("DistanceX", 20, 3, -1, 1, Q("378.458591 mm")),
    Sketcher.Constraint("DistanceX", 24, 3, -1, 1, Q("278.885738 mm")),
    Sketcher.Constraint("DistanceX", 27, 3, -1, 1, Q("219.066919 mm")),
    Sketcher.Constraint("DistanceX", 28, 3, -1, 1, Q("221.541409 mm")),
    Sketcher.Constraint("DistanceX", 2, 3, 1, 3, Q("16.284752 mm")),
    Sketcher.Constraint("DistanceY", 5, 3, 2, 3, Q("91.647749 mm")),
    Sketcher.Constraint("DistanceX", 7, 3, 8, 3, Q("28.283559 mm")),
    Sketcher.Constraint("DistanceX", 6, 3, 9, 3, Q("91.647749 mm")),
    Sketcher.Constraint("DistanceY", 11, 3, 12, 3, Q("28.283559 mm")),
    Sketcher.Constraint("DistanceX", 0, 3, 12, 3, Q("88.102379 mm")),
    Sketcher.Constraint("DistanceY", 10, 3, 13, 3, Q("91.647749 mm")),
    Sketcher.Constraint("DistanceX", 1, 3, 14, 3, Q("91.647749 mm")),
    Sketcher.Constraint("DistanceX", 19, 3, 21, 3, Q("7.258328 mm")),
    Sketcher.Constraint("DistanceX", 23, 3, 24, 3, Q("28.283559 mm")),
    Sketcher.Constraint("DistanceX", 29, 3, 27, 3, Q("7.258328 mm")),
    Sketcher.Constraint("DistanceX", 16, 3, 31, 3, Q("28.283559 mm")),
])
pocket3 = body.newObject("PartDesign::Pocket", "Pocket002")
pocket3.Profile = sketch5
pocket3.Length = 4
pocket3.Reversed = True

sketch6 = body.newObject("Sketcher::SketchObject", "Sketch005")
sketch6.AttachmentSupport = (doc.getObject("XY_Plane"), [""])
sketch6.MapMode = "FlatFace"
sketch6.AttachmentOffset = App.Placement(Vector(0, 0, 18), App.Rotation())
add_polygon(sketch6, [(-60, 110), (-60, 90), (-40, 90), (-40, 110)])
sketch6.addConstraint([
    Sketcher.Constraint("Vertical", 0),
    Sketcher.Constraint("Horizontal", 1),
    Sketcher.Constraint("Vertical", 2),
    Sketcher.Constraint("Horizontal", 3),
    Sketcher.Constraint("Equal", 3, 0),
    Sketcher.Constraint("DistanceX", 1, 1, 1, 2, Q("20 mm")),
    Sketcher.Constraint("DistanceX", 0, 2, -1, 1, Q("60 mm")),
    Sketcher.Constraint("DistanceY", -1, 1, 0, 2, Q("90 mm")),
])
pocket4 = body.newObject("PartDesign::Pocket", "Pocket003")
pocket4.Profile = sketch6
pocket4.Length = 4
doc.recompute()

fillet3 = body.newObject("PartDesign::Fillet", "Fillet002")
fillet3.Base = (pocket4, edges_at(pocket4, [
    (-60, 90, 16),
    (-60, 110, 16),
    (-40, 110, 16),
    (-40, 90, 16),
]))
fillet3.Radius = 3

doc.recompute()
